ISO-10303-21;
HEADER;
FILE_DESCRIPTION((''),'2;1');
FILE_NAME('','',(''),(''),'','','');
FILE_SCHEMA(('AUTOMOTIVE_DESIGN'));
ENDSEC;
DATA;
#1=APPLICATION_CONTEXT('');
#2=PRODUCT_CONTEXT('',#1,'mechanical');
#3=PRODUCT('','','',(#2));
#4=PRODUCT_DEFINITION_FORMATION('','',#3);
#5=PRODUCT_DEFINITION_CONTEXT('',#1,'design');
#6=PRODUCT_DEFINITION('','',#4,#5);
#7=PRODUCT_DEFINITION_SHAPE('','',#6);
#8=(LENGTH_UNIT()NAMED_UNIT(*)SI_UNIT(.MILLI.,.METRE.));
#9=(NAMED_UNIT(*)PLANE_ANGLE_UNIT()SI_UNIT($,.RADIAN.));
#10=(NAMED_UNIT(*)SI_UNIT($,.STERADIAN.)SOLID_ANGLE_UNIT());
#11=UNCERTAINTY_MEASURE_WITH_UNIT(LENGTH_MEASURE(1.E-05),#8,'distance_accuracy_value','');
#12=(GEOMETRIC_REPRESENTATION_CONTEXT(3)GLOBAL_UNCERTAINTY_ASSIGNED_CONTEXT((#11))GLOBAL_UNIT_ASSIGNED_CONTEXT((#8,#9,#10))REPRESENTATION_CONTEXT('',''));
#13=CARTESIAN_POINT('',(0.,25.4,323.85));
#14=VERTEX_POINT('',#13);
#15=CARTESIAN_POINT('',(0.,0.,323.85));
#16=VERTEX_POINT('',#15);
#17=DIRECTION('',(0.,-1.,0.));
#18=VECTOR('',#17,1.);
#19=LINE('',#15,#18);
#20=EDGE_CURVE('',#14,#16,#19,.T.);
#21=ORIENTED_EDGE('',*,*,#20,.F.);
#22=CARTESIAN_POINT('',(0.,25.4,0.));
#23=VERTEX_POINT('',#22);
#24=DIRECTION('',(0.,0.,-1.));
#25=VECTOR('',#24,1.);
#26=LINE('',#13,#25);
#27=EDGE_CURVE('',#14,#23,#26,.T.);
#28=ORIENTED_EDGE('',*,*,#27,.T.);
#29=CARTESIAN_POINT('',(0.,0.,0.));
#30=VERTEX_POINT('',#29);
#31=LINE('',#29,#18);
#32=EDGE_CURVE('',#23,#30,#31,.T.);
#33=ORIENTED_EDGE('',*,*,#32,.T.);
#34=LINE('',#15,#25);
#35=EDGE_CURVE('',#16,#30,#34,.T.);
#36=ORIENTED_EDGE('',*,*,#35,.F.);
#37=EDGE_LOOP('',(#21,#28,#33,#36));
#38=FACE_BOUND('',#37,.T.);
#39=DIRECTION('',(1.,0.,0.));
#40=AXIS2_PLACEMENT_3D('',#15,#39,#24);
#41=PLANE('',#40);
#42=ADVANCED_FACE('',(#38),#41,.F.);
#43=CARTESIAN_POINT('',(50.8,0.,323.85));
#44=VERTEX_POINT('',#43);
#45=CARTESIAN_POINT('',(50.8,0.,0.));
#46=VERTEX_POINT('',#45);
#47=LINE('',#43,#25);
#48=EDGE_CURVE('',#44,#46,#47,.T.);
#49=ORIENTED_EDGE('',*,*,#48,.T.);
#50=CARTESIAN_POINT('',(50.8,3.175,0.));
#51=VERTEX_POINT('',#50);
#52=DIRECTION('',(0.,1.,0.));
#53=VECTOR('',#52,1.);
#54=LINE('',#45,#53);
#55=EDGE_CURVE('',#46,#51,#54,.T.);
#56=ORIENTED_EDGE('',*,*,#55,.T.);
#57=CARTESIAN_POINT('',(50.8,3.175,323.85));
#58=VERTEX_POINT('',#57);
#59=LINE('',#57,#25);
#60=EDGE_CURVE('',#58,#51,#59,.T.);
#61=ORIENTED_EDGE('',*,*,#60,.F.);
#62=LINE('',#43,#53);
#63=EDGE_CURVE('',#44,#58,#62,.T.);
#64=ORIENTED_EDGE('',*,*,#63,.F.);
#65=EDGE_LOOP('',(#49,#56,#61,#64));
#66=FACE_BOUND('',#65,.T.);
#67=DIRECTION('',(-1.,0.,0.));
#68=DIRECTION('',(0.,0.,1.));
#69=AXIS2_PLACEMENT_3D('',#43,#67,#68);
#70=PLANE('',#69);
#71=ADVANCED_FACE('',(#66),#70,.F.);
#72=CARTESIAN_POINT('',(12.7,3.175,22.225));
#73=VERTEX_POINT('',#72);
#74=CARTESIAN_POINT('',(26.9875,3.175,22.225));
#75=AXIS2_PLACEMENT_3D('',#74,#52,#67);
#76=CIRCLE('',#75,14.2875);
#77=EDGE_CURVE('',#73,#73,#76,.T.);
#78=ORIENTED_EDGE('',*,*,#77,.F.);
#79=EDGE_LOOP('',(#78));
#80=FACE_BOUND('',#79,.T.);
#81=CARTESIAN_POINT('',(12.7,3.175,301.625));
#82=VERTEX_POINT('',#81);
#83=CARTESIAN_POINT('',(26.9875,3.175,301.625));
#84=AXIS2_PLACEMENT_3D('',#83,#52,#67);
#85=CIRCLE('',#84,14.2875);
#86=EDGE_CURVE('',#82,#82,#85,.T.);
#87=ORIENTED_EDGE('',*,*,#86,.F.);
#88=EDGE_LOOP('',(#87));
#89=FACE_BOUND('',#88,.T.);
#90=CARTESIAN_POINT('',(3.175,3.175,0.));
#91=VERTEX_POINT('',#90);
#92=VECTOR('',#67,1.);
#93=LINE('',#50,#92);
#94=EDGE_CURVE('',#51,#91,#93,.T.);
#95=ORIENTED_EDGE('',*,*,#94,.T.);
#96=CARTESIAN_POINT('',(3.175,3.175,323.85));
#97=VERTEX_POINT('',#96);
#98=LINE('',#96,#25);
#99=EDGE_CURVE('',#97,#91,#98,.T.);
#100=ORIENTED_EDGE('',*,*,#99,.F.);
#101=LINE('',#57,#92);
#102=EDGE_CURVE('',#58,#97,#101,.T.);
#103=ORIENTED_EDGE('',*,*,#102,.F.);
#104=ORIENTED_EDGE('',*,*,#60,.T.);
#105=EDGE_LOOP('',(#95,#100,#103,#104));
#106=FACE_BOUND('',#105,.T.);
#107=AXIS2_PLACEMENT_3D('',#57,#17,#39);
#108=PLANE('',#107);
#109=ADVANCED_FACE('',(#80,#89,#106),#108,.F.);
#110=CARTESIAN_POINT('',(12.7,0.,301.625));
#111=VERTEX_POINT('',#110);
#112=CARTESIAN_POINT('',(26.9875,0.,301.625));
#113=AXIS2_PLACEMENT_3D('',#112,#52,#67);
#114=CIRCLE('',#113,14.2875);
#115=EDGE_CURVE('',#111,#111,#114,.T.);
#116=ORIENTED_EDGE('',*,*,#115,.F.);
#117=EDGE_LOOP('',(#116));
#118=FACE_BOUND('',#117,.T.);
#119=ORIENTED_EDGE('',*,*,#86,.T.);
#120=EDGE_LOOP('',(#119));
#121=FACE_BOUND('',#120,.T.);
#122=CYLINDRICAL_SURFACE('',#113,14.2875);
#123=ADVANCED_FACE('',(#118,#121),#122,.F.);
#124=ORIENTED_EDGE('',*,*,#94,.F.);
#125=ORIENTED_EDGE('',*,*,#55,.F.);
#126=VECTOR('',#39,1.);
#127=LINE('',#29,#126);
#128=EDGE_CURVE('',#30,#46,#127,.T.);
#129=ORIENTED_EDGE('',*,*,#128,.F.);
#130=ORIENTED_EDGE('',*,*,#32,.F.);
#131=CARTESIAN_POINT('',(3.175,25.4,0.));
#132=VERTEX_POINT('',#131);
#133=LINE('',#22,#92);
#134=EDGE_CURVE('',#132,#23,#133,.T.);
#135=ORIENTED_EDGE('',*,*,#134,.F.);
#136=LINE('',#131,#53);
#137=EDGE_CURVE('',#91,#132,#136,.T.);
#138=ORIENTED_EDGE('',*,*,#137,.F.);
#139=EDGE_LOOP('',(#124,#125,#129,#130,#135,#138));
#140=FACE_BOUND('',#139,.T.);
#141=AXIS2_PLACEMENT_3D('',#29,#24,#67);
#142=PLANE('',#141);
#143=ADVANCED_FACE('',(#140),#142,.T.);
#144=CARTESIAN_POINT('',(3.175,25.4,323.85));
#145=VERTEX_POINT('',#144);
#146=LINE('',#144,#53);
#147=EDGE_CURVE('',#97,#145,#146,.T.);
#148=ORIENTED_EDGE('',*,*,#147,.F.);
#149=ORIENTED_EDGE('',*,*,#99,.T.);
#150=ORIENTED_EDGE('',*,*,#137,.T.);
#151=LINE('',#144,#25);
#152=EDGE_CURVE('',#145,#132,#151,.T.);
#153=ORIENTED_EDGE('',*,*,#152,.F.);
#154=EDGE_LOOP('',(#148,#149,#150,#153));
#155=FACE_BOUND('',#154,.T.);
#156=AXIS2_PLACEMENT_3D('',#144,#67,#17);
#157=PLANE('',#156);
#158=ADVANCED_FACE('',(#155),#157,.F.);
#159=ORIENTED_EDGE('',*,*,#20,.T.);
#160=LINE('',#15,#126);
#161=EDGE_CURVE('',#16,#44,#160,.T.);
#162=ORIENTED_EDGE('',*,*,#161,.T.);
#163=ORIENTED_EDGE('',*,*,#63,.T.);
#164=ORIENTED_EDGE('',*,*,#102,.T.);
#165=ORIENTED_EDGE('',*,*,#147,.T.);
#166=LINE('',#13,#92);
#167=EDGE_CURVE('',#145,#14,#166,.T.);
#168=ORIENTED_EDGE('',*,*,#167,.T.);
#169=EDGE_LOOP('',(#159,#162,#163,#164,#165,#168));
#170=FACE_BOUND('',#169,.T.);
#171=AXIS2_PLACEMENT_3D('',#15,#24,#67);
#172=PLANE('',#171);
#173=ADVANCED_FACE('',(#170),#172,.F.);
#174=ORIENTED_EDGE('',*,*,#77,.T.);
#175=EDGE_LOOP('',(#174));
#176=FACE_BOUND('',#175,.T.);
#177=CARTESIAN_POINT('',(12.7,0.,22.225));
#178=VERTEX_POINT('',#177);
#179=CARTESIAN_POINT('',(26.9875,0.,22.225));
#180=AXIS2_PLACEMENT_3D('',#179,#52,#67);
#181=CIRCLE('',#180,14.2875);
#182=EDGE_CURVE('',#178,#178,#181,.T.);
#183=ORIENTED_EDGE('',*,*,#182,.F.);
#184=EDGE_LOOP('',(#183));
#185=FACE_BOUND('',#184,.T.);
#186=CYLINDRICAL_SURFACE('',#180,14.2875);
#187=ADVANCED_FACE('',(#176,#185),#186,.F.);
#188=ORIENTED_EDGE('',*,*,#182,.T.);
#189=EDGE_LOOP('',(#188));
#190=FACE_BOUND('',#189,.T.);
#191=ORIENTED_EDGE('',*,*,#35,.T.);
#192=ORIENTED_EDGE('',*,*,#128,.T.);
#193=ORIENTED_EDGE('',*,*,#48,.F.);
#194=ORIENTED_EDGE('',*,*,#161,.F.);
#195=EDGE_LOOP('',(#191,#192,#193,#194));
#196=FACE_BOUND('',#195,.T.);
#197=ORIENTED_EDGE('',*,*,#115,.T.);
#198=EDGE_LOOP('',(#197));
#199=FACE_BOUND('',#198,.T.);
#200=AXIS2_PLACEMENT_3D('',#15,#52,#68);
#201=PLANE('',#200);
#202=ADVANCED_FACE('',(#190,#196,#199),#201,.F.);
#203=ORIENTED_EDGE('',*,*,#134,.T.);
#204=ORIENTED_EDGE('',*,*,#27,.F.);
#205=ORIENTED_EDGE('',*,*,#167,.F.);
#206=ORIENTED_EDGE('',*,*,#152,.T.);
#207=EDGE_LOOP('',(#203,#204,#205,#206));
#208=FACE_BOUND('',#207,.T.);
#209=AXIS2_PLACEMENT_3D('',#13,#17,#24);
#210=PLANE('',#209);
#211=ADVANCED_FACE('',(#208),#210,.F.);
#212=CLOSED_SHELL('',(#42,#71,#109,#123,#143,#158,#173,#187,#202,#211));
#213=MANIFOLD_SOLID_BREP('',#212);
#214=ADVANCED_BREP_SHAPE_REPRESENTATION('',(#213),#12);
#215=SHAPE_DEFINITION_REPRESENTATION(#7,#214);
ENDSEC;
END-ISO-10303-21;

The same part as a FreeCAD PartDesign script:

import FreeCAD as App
import Part
import Sketcher

V = App.Vector
Q = App.Units.Quantity

doc = App.newDocument("Part")
body = doc.addObject("PartDesign::Body", "Body")

sketch1 = doc.addObject("Sketcher::SketchObject", "Sketch")
body.addObject(sketch1)
sketch1.AttachmentSupport = (doc.XY_Plane, [""])
sketch1.MapMode = "FlatFace"
sketch1.addGeometry([
    Part.LineSegment(V(0, 0, 0), V(50.8, 0, 0)),
    Part.LineSegment(V(50.8, 0, 0), V(50.8, 3.2, 0)),
    Part.LineSegment(V(50.8, 3.2, 0), V(3.2, 3.2, 0)),
    Part.LineSegment(V(3.2, 3.2, 0), V(3.2, 25.4, 0)),
    Part.LineSegment(V(3.2, 25.4, 0), V(0, 25.4, 0)),
    Part.LineSegment(V(0, 25.4, 0), V(0, 0, 0)),
], False)
sketch1.addConstraint([
    Sketcher.Constraint("Coincident", 0, 2, 1, 1),
    Sketcher.Constraint("Coincident", 1, 2, 2, 1),
    Sketcher.Constraint("Coincident", 2, 2, 3, 1),
    Sketcher.Constraint("Coincident", 3, 2, 4, 1),
    Sketcher.Constraint("Coincident", 4, 2, 5, 1),
    Sketcher.Constraint("Coincident", 5, 2, 0, 1),
    Sketcher.Constraint("Horizontal", 0),
    Sketcher.Constraint("Vertical", 1),
    Sketcher.Constraint("Horizontal", 2),
    Sketcher.Constraint("Vertical", 3),
    Sketcher.Constraint("Horizontal", 4),
    Sketcher.Constraint("Vertical", 5),
    Sketcher.Constraint("Coincident", 5, 2, -1, 1),
    Sketcher.Constraint("Equal", 4, 1),
    Sketcher.Constraint("DistanceX", 0, 1, 0, 2, Q("2 in")),
    Sketcher.Constraint("DistanceY", 5, 2, 5, 1, Q("1 in")),
    Sketcher.Constraint("DistanceX", 2, 2, 2, 1, Q("1.875 in")),
])
pad1 = doc.addObject("PartDesign::Pad", "Pad")
body.addObject(pad1)
pad1.Profile = sketch1
pad1.Length = Q("12.75 in")

sketch2 = doc.addObject("Sketcher::SketchObject", "Sketch001")
body.addObject(sketch2)
sketch2.AttachmentSupport = (doc.XZ_Plane, [""])
sketch2.MapMode = "FlatFace"
sketch2.AttachmentOffset = App.Placement(V(0, 0, -0.125 * 25.4), App.Rotation())
sketch2.addGeometry([
    Part.Circle(V(27, 302, 0), V(0, 0, 1), 14),
    Part.Circle(V(27, 22, 0), V(0, 0, 1), 14),
], False)
sketch2.addConstraint([
    Sketcher.Constraint("Equal", 0, 1),
    Sketcher.Constraint("Vertical", 0, 3, 1, 3),
    Sketcher.Constraint("Diameter", 0, Q("1.125 in")),
    Sketcher.Constraint("DistanceY", 1, 3, 0, 3, Q("11 in")),
    Sketcher.Constraint("DistanceX", -1, 1, 0, 3, Q("1.0625 in")),
    Sketcher.Constraint("DistanceY", -1, 1, 0, 3, Q("11.875 in")),
])
pocket1 = doc.addObject("PartDesign::Pocket", "Pocket")
body.addObject(pocket1)
pocket1.Profile = sketch2
pocket1.Type = "ThroughAll"
pocket1.Reversed = True

doc.recompute()
